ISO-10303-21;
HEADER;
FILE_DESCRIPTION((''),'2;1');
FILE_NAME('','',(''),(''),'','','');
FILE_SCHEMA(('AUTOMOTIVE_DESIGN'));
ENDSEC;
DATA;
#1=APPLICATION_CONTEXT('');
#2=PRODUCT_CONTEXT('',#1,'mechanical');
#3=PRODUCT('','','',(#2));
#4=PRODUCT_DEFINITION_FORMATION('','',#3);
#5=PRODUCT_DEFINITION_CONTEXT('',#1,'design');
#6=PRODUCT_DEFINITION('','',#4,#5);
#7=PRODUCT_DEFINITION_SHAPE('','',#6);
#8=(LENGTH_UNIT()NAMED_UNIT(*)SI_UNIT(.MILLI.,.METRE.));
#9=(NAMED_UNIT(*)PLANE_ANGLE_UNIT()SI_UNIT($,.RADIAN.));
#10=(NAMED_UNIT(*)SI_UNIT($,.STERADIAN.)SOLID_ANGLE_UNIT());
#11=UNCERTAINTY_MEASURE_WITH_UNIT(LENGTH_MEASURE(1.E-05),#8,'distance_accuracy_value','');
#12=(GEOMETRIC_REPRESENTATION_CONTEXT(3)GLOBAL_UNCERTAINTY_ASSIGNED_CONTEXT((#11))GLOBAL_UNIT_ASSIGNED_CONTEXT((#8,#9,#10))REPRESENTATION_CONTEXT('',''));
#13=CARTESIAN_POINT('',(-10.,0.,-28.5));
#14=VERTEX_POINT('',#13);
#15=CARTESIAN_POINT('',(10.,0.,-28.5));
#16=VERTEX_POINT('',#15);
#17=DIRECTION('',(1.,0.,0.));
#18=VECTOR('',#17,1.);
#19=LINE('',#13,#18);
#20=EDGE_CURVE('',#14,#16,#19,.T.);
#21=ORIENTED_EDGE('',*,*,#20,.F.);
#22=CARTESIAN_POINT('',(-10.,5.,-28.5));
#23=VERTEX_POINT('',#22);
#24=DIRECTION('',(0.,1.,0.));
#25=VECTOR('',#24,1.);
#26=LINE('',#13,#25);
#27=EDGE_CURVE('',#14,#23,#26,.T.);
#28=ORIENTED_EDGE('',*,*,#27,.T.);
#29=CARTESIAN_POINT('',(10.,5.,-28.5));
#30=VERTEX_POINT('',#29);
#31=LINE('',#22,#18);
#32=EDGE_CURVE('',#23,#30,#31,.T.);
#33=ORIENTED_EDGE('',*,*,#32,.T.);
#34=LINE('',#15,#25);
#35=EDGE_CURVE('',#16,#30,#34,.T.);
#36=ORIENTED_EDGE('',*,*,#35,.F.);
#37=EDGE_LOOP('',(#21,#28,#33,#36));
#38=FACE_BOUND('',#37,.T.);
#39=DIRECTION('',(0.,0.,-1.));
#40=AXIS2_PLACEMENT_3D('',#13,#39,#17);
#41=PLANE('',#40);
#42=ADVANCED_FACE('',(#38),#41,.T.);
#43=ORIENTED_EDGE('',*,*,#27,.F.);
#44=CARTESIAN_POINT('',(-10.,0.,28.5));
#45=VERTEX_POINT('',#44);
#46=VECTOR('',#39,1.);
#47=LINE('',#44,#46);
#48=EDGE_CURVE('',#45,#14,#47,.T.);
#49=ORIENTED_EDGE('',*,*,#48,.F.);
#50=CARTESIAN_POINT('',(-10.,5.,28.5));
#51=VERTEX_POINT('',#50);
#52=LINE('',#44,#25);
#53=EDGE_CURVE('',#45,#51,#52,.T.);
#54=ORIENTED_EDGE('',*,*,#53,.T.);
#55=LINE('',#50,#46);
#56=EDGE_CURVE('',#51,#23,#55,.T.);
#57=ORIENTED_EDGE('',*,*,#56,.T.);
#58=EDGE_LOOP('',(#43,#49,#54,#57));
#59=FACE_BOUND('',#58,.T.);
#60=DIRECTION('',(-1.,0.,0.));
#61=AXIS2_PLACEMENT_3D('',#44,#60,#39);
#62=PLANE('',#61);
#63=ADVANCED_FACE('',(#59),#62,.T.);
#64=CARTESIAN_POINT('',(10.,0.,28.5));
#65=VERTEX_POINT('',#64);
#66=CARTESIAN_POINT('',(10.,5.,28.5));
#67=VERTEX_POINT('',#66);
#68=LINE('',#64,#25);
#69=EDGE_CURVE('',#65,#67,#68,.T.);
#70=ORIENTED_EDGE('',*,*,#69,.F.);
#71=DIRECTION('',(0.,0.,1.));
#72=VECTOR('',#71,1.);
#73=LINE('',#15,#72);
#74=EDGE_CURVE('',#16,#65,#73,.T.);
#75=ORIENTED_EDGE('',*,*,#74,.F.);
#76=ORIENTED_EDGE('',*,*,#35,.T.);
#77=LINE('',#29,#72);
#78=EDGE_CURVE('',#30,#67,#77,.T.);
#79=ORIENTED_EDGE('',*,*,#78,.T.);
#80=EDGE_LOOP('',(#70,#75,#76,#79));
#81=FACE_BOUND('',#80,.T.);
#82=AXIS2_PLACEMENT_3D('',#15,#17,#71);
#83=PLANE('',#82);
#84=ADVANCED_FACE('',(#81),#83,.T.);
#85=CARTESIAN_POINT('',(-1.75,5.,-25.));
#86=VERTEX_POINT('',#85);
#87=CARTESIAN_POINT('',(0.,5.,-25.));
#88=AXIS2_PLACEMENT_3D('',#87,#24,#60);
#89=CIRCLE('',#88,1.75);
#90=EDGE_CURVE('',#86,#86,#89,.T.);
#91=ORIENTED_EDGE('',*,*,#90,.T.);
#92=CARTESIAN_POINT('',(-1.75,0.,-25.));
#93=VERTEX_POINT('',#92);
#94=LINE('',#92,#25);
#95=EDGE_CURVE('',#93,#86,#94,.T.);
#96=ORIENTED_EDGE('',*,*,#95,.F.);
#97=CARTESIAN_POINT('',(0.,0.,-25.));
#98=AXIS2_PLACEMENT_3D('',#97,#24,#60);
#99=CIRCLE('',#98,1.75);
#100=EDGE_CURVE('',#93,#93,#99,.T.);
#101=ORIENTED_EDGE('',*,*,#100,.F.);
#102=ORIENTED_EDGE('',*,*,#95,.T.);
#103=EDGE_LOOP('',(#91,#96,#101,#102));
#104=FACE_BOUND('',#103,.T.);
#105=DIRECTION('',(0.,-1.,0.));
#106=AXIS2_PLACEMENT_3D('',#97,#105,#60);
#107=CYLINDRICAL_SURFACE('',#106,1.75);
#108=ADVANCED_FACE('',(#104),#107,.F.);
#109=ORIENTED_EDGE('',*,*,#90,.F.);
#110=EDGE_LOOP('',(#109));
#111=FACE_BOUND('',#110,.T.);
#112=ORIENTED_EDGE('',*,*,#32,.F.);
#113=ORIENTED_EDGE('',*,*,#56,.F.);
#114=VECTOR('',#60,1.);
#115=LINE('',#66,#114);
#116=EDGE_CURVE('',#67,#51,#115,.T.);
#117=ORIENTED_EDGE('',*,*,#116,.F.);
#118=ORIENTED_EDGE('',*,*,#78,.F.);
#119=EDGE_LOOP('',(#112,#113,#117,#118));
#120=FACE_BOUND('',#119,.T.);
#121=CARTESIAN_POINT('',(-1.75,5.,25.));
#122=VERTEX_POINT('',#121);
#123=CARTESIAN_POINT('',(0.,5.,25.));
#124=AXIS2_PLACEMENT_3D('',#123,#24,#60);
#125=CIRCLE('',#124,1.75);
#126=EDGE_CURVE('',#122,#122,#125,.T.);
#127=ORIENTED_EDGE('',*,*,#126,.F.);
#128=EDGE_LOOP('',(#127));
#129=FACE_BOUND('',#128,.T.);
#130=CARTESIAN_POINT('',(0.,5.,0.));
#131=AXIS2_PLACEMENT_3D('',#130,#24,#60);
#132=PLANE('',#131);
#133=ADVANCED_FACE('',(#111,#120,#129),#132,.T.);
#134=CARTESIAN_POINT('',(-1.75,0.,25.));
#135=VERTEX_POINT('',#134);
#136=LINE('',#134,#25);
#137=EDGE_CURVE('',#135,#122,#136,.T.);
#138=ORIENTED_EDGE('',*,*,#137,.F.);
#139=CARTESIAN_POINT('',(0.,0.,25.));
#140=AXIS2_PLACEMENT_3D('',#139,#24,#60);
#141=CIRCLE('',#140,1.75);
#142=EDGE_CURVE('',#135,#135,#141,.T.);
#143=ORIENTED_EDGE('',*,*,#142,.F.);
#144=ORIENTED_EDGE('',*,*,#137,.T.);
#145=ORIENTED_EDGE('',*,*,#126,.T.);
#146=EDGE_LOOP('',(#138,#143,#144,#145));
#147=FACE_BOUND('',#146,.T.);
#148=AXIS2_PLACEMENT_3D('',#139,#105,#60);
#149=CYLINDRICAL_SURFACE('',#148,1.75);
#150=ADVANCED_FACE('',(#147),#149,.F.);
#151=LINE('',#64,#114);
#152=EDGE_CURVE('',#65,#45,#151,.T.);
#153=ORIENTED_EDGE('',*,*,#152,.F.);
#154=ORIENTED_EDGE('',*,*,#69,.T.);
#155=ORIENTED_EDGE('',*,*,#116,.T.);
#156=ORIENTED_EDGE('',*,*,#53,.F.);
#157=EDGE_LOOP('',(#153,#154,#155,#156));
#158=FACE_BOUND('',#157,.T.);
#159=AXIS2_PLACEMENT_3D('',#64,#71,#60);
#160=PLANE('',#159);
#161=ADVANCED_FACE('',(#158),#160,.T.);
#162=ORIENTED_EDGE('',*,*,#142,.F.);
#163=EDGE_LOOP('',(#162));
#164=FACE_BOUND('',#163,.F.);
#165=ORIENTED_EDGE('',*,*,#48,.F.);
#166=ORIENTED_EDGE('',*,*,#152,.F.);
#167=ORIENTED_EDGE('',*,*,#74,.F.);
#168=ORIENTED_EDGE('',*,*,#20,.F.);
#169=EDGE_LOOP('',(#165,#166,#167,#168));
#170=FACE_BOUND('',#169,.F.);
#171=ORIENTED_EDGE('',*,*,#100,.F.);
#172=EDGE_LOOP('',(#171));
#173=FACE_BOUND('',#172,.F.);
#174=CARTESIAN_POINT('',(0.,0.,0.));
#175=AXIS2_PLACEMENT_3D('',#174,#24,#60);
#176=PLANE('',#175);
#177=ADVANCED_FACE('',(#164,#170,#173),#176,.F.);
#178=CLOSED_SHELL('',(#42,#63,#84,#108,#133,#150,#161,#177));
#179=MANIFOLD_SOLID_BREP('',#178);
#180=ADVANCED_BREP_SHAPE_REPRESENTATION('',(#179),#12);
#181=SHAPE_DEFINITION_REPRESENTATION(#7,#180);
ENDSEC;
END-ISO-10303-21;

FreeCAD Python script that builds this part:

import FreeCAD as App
import Part
import Sketcher
from FreeCAD import Vector
Q = App.Units.Quantity


def add_polygon(sketch, points):
    """Adds a closed chain of lines whose ends are joined by coincident constraints."""
    first, n = sketch.GeometryCount, len(points)
    for a, b in zip(points, points[1:] + points[:1]):
        sketch.addGeometry(Part.LineSegment(App.Vector(*a, 0), App.Vector(*b, 0)), False)
    for i in range(n):
        sketch.addConstraint(Sketcher.Constraint("Coincident", first + i, 2, first + (i + 1) % n, 1))

doc = App.newDocument("Part")
body = doc.addObject("PartDesign::Body", "Body")

# Sketch on XZ plane
sketch1 = body.newObject("Sketcher::SketchObject", "Sketch")
sketch1.AttachmentSupport = (doc.getObject("XZ_Plane"), [""])
sketch1.MapMode = "FlatFace"
add_polygon(sketch1, [(-10, 28.5), (10, 28.5), (10, -28.5), (-10, -28.5)])  # lines 0-3
sketch1.addGeometry(Part.Circle(Vector(0, -25, 0), Vector(0, 0, 1), 1.75), False)  # 4
sketch1.addGeometry(Part.Circle(Vector(0, 25, 0), Vector(0, 0, 1), 1.75), False)  # 5
sketch1.addConstraint(Sketcher.Constraint("Horizontal", 0))
sketch1.addConstraint(Sketcher.Constraint("Vertical", 1))
sketch1.addConstraint(Sketcher.Constraint("Horizontal", 2))
sketch1.addConstraint(Sketcher.Constraint("Vertical", 3))
sketch1.addConstraint(Sketcher.Constraint("Equal", 4, 5))
sketch1.addConstraint(Sketcher.Constraint("Symmetric", 4, 3, 5, 3, -1, 1))
sketch1.addConstraint(Sketcher.Constraint("Symmetric", 0, 2, 2, 2, -1, 1))
sketch1.addConstraint(Sketcher.Constraint("PointOnObject", 4, 3, -2))
sketch1.addConstraint(Sketcher.Constraint("Diameter", 4, Q("3.5 mm")))
sketch1.addConstraint(Sketcher.Constraint("DistanceX", 0, 1, 0, 2, Q("20 mm")))
sketch1.addConstraint(Sketcher.Constraint("DistanceY", 1, 2, 1, 1, Q("57 mm")))
sketch1.addConstraint(Sketcher.Constraint("DistanceY", 5, 3, 0, 2, Q("3.5 mm")))
pad1 = body.newObject("PartDesign::Pad", "Pad")
pad1.Profile = sketch1
pad1.Length = 5
pad1.Reversed = True

doc.recompute()
